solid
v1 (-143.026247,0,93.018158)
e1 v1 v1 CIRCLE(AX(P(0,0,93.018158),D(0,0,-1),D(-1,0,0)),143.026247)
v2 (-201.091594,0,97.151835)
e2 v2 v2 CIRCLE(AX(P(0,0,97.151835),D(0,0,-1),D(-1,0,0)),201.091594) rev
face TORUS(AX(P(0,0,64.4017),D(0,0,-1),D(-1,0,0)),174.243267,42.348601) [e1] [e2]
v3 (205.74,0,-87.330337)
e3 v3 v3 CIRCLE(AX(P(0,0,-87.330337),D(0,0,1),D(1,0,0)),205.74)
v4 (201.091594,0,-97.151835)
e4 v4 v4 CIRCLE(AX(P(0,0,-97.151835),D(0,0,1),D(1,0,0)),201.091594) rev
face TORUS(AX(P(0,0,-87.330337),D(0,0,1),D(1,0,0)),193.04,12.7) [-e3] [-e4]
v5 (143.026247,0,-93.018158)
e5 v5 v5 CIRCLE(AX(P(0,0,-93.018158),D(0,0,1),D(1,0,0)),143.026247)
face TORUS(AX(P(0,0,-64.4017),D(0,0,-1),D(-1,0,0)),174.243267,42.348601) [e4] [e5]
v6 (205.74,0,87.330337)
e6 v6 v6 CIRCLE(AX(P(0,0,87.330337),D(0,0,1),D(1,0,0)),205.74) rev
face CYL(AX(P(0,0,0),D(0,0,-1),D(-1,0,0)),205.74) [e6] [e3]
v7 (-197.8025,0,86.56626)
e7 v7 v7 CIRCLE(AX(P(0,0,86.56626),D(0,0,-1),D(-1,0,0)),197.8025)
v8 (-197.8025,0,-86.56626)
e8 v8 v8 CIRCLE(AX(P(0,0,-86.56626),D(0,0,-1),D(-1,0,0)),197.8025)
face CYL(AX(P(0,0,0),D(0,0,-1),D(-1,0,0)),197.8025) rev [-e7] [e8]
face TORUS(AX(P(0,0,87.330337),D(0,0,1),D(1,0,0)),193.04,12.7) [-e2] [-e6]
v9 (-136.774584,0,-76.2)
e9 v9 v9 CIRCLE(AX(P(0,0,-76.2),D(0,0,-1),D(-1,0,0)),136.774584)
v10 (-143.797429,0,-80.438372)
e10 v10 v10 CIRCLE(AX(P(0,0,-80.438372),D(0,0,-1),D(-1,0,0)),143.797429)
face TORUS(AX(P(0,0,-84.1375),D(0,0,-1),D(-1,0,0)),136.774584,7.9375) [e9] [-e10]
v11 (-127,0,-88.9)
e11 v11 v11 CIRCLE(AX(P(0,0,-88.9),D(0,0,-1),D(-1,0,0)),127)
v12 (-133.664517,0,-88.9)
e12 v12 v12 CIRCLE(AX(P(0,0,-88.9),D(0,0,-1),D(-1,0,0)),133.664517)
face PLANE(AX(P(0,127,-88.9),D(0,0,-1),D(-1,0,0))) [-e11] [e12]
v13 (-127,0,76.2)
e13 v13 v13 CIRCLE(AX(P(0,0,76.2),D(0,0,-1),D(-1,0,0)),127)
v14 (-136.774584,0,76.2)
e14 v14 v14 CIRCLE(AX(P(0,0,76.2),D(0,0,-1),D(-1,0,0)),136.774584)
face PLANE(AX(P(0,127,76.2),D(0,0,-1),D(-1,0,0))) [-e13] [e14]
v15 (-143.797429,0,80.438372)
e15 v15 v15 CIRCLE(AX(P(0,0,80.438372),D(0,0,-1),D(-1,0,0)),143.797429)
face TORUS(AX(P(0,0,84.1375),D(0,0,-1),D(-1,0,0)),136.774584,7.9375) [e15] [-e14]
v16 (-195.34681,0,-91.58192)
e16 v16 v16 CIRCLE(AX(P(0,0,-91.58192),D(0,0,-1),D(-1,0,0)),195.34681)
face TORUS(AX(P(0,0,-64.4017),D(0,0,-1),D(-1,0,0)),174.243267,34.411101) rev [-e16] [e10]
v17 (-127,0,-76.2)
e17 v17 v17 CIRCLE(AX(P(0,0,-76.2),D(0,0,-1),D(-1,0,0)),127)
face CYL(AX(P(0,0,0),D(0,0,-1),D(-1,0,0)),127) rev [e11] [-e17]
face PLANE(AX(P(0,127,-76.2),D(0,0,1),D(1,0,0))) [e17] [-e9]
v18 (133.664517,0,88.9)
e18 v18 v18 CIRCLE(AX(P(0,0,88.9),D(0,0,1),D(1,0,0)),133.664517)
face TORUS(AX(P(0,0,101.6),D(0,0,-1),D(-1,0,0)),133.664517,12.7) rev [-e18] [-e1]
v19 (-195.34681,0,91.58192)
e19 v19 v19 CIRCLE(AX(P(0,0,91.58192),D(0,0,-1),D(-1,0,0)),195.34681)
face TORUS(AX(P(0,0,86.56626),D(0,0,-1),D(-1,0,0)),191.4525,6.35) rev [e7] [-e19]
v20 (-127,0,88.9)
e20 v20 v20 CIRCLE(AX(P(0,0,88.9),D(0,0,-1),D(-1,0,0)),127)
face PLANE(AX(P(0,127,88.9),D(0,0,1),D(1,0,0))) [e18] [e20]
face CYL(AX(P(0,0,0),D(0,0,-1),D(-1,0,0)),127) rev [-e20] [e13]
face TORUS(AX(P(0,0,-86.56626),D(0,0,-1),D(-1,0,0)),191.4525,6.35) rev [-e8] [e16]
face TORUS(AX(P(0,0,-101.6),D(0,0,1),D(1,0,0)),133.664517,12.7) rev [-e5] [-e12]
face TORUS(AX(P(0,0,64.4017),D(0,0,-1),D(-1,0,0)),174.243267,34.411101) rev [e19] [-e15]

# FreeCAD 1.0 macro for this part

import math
import FreeCAD as App
import Part
import Sketcher

V = App.Vector
Q = App.Units.Quantity


def edges_at(feature, points):
    """Names of the edges that pass closest to the given points."""
    edges = feature.Shape.Edges
    near = lambda p: min(range(len(edges)), key=lambda i: edges[i].distToShape(Part.Vertex(*p))[0])
    return sorted({f"Edge{near(p) + 1}" for p in points})

doc = App.newDocument("Part")
params = doc.addObject("Spreadsheet::Sheet", "Params")
for row, (alias, value) in enumerate([
    ("sketch1_radius", "0.25 in"),
    ("sketch1_width", "0.5 in"),
    ("sketch1_height", "7.3 in"),
    ("sketch1_radius2", "0.3125 in"),
    ("revolution_angle", "360 deg"),
    ("fillet_radius", "0.5 in"),
], start=1):
    params.set(f"A{row}", alias)
    params.set(f"B{row}", "=" + value)
    params.setAlias(f"B{row}", alias)

body = doc.addObject("PartDesign::Body", "Body")

sketch1 = body.newObject("Sketcher::SketchObject", "Sketch")
sketch1.AttachmentSupport = (doc.getObject("YZ_Plane"), [""])
sketch1.MapMode = "FlatFace"
sketch1.addGeometry([
    Part.LineSegment(V(206, -93, 0), V(206, 93, 0)),
    Part.ArcOfCircle(Part.Circle(V(174, 64, 0), V(0, 0, 1), 42), math.radians(42), math.radians(145)),
    Part.LineSegment(V(140, 89, 0), V(127, 89, 0)),
    Part.LineSegment(V(127, 89, 0), V(127, 76, 0)),
    Part.LineSegment(V(127, 76, 0), V(137, 76, 0)),
    Part.ArcOfCircle(Part.Circle(V(137, 84, 0), V(0, 0, 1), 8), math.radians(-90), math.radians(-28)),
    Part.ArcOfCircle(Part.Circle(V(174, 64, 0), V(0, 0, 1), 34), math.radians(52), math.radians(152)),
    Part.ArcOfCircle(Part.Circle(V(191, 87, 0), V(0, 0, 1), 6), math.radians(0), math.radians(52)),
    Part.LineSegment(V(198, 87, 0), V(198, -87, 0)),
    Part.ArcOfCircle(Part.Circle(V(191, -87, 0), V(0, 0, 1), 6), math.radians(-52), math.radians(0)),
    Part.ArcOfCircle(Part.Circle(V(174, -64, 0), V(0, 0, 1), 34), math.radians(-152), math.radians(-52)),
    Part.ArcOfCircle(Part.Circle(V(137, -84, 0), V(0, 0, 1), 8), math.radians(28), math.radians(90)),
    Part.LineSegment(V(137, -76, 0), V(127, -76, 0)),
    Part.LineSegment(V(127, -76, 0), V(127, -89, 0)),
    Part.LineSegment(V(127, -89, 0), V(140, -89, 0)),
    Part.ArcOfCircle(Part.Circle(V(174, -64, 0), V(0, 0, 1), 42), math.radians(-145), math.radians(-42)),
], False)
sketch1.addConstraint([
    Sketcher.Constraint("Coincident", 0, 2, 1, 1),
    Sketcher.Constraint("Coincident", 1, 2, 2, 1),
    Sketcher.Constraint("Coincident", 2, 2, 3, 1),
    Sketcher.Constraint("Coincident", 3, 2, 4, 1),
    Sketcher.Constraint("Tangent", 4, 2, 5, 1),
    Sketcher.Constraint("Tangent", 5, 2, 6, 2),
    Sketcher.Constraint("Tangent", 6, 1, 7, 2),
    Sketcher.Constraint("Tangent", 7, 1, 8, 1),
    Sketcher.Constraint("Tangent", 8, 2, 9, 2),
    Sketcher.Constraint("Tangent", 9, 1, 10, 2),
    Sketcher.Constraint("Tangent", 10, 1, 11, 1),
    Sketcher.Constraint("Tangent", 11, 2, 12, 1),
    Sketcher.Constraint("Coincident", 12, 2, 13, 1),
    Sketcher.Constraint("Coincident", 13, 2, 14, 1),
    Sketcher.Constraint("Coincident", 14, 2, 15, 1),
    Sketcher.Constraint("Coincident", 15, 2, 0, 1),
    Sketcher.Constraint("Vertical", 0),
    Sketcher.Constraint("Horizontal", 2),
    Sketcher.Constraint("Vertical", 3),
    Sketcher.Constraint("Horizontal", 4),
    Sketcher.Constraint("Vertical", 8),
    Sketcher.Constraint("Horizontal", 12),
    Sketcher.Constraint("Vertical", 13),
    Sketcher.Constraint("Horizontal", 14),
    Sketcher.Constraint("Coincident", 6, 3, 1, 3),
    Sketcher.Constraint("Coincident", 15, 3, 10, 3),
    Sketcher.Constraint("Equal", 7, 9),
    Sketcher.Constraint("Equal", 6, 10),
    Sketcher.Constraint("Equal", 5, 11),
    Sketcher.Constraint("Equal", 1, 15),
    Sketcher.Constraint("Symmetric", 1, 3, 10, 3, -1),
    Sketcher.Constraint("Symmetric", 3, 2, 12, 2, -1),
    Sketcher.Constraint("Vertical", 1, 2, 14, 2),
    Sketcher.Constraint("Equal", 14, 3),
    Sketcher.Constraint("Radius", 7, Q("0.25 in")),
    Sketcher.Constraint("DistanceX", 2, 2, 2, 1, Q("0.5 in")),
    Sketcher.Constraint("DistanceY", 0, 1, 0, 2, Q("7.3 in")),
    Sketcher.Constraint("DistanceX", -1, 1, 2, 2, Q("5 in")),
    Sketcher.Constraint("DistanceY", -1, 1, 3, 2, Q("3 in")),
    Sketcher.Constraint("Radius", 5, Q("0.3125 in")),
    Sketcher.Constraint("DistanceX", -1, 1, 0, 2, Q("8.1 in")),
    Sketcher.Constraint("Radius", 1, Q("42.348601 mm")),
    Sketcher.Constraint("Radius", 6, Q("34.411101 mm")),
    Sketcher.Constraint("DistanceX", 7, 3, 0, 2, Q("0.5625 in")),
])
sketch1.setExpression("Constraints[34]", "Params.sketch1_radius")
sketch1.setExpression("Constraints[35]", "Params.sketch1_width")
sketch1.setExpression("Constraints[36]", "Params.sketch1_height")
sketch1.setExpression("Constraints[39]", "Params.sketch1_radius2")
revolution = body.newObject("PartDesign::Revolution", "Revolution")
revolution.Profile = sketch1
revolution.ReferenceAxis = (sketch1, ["V_Axis"])
revolution.setExpression("Angle", "Params.revolution_angle")
doc.recompute()

fillet = body.newObject("PartDesign::Fillet", "Fillet")
fillet.Base = (revolution, edges_at(revolution, [
    (0, -205.74, 92.71),
    (0, -205.74, -92.71),
    (0, -139.7, -88.9),
    (0, -139.7, 88.9),
]))
fillet.setExpression("Radius", "Params.fillet_radius")

doc.recompute()
